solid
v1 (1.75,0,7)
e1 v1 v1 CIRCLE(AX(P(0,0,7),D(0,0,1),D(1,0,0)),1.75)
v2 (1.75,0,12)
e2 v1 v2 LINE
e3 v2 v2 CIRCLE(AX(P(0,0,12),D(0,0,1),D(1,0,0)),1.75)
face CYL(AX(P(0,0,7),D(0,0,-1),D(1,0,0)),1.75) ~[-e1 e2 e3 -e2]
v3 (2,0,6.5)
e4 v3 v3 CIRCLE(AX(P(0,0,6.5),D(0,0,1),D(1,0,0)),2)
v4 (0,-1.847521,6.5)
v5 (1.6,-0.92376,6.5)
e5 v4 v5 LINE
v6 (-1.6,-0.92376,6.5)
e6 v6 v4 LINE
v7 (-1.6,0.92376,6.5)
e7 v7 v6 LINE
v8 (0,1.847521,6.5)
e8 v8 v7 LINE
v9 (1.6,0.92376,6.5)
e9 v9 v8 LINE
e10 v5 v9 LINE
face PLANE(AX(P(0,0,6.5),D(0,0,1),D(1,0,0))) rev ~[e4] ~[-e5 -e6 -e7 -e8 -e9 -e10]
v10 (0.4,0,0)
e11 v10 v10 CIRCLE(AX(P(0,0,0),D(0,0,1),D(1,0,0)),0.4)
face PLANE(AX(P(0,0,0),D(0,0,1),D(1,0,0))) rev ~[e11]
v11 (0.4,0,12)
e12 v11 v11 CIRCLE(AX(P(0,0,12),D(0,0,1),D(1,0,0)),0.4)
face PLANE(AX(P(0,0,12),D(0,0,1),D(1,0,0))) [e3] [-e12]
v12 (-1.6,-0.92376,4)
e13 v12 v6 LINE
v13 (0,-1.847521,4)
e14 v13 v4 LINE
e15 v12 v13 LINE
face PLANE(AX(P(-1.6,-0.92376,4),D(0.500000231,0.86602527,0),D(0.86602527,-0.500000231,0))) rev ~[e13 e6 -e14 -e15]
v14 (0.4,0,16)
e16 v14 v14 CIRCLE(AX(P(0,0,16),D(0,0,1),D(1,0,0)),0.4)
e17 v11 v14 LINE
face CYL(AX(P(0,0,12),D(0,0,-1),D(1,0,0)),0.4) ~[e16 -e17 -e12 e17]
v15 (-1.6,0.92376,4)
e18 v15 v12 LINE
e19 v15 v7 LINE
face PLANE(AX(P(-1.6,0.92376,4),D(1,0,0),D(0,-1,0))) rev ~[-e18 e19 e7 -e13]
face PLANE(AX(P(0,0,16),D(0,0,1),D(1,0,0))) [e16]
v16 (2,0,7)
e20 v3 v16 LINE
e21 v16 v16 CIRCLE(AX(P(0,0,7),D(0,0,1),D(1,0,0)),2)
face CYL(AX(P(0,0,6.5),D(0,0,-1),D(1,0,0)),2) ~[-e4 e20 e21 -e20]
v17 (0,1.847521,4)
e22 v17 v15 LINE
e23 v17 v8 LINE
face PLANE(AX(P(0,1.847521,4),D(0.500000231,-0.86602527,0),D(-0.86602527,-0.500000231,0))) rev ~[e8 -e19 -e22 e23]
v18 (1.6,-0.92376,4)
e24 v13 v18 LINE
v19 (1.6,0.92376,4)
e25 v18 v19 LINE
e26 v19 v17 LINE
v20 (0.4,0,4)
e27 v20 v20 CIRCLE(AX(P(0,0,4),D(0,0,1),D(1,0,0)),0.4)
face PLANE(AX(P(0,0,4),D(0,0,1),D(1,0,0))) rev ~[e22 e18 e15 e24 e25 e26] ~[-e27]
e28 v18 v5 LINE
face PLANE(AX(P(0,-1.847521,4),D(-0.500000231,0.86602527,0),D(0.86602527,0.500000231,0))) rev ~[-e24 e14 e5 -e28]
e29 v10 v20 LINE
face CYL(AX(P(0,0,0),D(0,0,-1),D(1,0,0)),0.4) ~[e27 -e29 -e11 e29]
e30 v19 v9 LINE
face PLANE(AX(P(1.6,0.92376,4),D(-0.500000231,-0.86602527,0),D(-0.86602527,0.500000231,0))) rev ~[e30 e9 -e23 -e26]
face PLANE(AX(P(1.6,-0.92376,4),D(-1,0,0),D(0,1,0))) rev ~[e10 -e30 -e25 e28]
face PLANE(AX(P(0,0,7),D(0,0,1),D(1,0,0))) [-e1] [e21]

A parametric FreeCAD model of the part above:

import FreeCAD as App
import Part
import Sketcher
Q = App.Units.Quantity


def add_polygon(sketch, points):
    """Adds a closed chain of lines whose ends are joined by coincident constraints."""
    first, n = sketch.GeometryCount, len(points)
    for a, b in zip(points, points[1:] + points[:1]):
        sketch.addGeometry(Part.LineSegment(App.Vector(*a, 0), App.Vector(*b, 0)), False)
    for i in range(n):
        sketch.addConstraint(Sketcher.Constraint("Coincident", first + i, 2, first + (i + 1) % n, 1))

doc = App.newDocument("Part")
body = doc.addObject("PartDesign::Body", "Body")

sketch1 = body.newObject("Sketcher::SketchObject", "Sketch")
sketch1.AttachmentSupport = (doc.getObject("XY_Plane"), [""])
sketch1.MapMode = "FlatFace"
sketch1.addGeometry(Part.Circle(App.Vector(0, 0, 0), App.Vector(0, 0, 1), 0.4), False)
sketch1.addConstraint([
    Sketcher.Constraint("Coincident", 0, 3, -1, 1),
    Sketcher.Constraint("Diameter", 0, 0.8),
])
pad1 = body.newObject("PartDesign::Pad", "Pad")
pad1.Profile = sketch1
pad1.Length = 4

sketch2 = body.newObject("Sketcher::SketchObject", "Sketch001")
sketch2.AttachmentSupport = (doc.getObject("XY_Plane"), [""])
sketch2.MapMode = "FlatFace"
sketch2.AttachmentOffset = App.Placement(App.Vector(0, 0, 4), App.Rotation())
add_polygon(sketch2, [(1.6, -0.9), (1.6, 0.9), (0, 1.8), (-1.6, 0.9), (-1.6, -0.9), (0, -1.8)])
sketch2.addConstraint([
    Sketcher.Constraint("Vertical", 0),
    Sketcher.Constraint("Vertical", 3),
    Sketcher.Constraint("Symmetric", 0, 2, 3, 2, -1, 1),
    Sketcher.Constraint("Symmetric", 1, 2, 4, 2, -1, 1),
    Sketcher.Constraint("PointOnObject", 1, 2, -2),
    Sketcher.Constraint("Parallel", 2, 5),
    Sketcher.Constraint("Horizontal", 0, 2, 2, 2),
    Sketcher.Constraint("Angle", 1, Q("149.999985 deg")),
    Sketcher.Constraint("DistanceX", -1, 1, 0, 2, 1.6),
    Sketcher.Constraint("DistanceY", 0, 1, 0, 2, 1.84752),
])
pad2 = body.newObject("PartDesign::Pad", "Pad001")
pad2.Profile = sketch2
pad2.Length = 2.5

sketch3 = body.newObject("Sketcher::SketchObject", "Sketch002")
sketch3.AttachmentSupport = (doc.getObject("XY_Plane"), [""])
sketch3.MapMode = "FlatFace"
sketch3.AttachmentOffset = App.Placement(App.Vector(0, 0, 6.5), App.Rotation())
sketch3.addGeometry(Part.Circle(App.Vector(0, 0, 0), App.Vector(0, 0, 1), 2), False)
sketch3.addConstraint([
    Sketcher.Constraint("Coincident", 0, 3, -1, 1),
    Sketcher.Constraint("Diameter", 0, 4.0),
])
pad3 = body.newObject("PartDesign::Pad", "Pad002")
pad3.Profile = sketch3
pad3.Length = 0.5

sketch4 = body.newObject("Sketcher::SketchObject", "Sketch003")
sketch4.AttachmentSupport = (doc.getObject("XY_Plane"), [""])
sketch4.MapMode = "FlatFace"
sketch4.AttachmentOffset = App.Placement(App.Vector(0, 0, 7), App.Rotation())
sketch4.addGeometry(Part.Circle(App.Vector(0, 0, 0), App.Vector(0, 0, 1), 1.8), False)
sketch4.addConstraint([
    Sketcher.Constraint("Coincident", 0, 3, -1, 1),
    Sketcher.Constraint("Diameter", 0, 3.5),
])
pad4 = body.newObject("PartDesign::Pad", "Pad003")
pad4.Profile = sketch4
pad4.Length = 5

sketch5 = body.newObject("Sketcher::SketchObject", "Sketch004")
sketch5.AttachmentSupport = (doc.getObject("XY_Plane"), [""])
sketch5.MapMode = "FlatFace"
sketch5.AttachmentOffset = App.Placement(App.Vector(0, 0, 12), App.Rotation())
sketch5.addGeometry(Part.Circle(App.Vector(0, 0, 0), App.Vector(0, 0, 1), 0.4), False)
sketch5.addConstraint([
    Sketcher.Constraint("Coincident", 0, 3, -1, 1),
    Sketcher.Constraint("Diameter", 0, 0.8),
])
pad5 = body.newObject("PartDesign::Pad", "Pad004")
pad5.Profile = sketch5
pad5.Length = 4

doc.recompute()
